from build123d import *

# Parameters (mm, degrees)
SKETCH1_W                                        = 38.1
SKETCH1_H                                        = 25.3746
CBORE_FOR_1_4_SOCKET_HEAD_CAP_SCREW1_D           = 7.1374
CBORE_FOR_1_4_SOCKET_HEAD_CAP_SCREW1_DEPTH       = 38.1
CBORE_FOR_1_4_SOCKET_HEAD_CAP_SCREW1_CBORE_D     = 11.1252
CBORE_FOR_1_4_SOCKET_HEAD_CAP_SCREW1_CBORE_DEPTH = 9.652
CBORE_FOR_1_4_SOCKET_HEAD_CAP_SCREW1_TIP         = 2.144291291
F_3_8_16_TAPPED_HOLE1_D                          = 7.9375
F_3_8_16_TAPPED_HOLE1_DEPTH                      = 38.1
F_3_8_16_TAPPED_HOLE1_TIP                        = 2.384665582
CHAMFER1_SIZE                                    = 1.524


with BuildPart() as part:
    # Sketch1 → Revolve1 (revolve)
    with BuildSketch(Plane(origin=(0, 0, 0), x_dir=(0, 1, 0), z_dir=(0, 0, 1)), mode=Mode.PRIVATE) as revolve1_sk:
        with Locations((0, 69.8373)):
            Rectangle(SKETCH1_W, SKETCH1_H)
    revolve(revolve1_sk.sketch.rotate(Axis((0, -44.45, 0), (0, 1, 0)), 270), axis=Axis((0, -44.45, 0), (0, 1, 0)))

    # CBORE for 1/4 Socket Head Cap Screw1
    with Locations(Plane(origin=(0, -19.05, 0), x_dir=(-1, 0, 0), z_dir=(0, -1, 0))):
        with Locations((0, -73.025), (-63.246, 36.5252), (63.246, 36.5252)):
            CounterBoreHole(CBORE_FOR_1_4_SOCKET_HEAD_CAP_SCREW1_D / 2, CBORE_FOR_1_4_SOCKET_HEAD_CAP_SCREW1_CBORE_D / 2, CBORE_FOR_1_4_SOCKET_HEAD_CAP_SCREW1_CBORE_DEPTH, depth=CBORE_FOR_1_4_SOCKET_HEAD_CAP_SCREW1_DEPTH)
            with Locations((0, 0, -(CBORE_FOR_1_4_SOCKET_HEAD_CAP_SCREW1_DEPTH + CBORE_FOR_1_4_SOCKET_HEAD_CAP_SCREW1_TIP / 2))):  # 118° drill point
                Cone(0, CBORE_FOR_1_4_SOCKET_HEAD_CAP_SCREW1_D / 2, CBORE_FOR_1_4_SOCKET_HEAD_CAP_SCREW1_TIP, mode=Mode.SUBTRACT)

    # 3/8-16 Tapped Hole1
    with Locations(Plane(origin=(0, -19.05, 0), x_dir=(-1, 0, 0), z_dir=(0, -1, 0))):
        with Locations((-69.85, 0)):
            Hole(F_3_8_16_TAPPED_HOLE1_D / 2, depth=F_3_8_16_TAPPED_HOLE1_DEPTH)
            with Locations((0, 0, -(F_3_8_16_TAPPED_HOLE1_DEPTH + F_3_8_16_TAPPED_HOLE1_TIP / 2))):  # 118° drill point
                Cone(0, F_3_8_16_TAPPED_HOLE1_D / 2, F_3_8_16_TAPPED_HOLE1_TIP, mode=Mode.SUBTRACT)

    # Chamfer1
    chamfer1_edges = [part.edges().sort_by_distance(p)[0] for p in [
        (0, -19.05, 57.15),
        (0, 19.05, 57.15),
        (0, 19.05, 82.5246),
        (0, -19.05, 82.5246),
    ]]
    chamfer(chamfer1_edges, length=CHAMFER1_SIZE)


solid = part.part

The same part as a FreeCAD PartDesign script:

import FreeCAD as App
import Part
import Sketcher

V = App.Vector
Q = App.Units.Quantity


def edges_at(feature, points):
    """Names of the edges that pass closest to the given points."""
    edges = feature.Shape.Edges
    near = lambda p: min(range(len(edges)), key=lambda i: edges[i].distToShape(Part.Vertex(*p))[0])
    return sorted({f"Edge{near(p) + 1}" for p in points})

doc = App.newDocument("Part")
body = doc.addObject("PartDesign::Body", "Body")

# Sketch on XY plane
sketch1 = body.newObject("Sketcher::SketchObject", "Sketch")
sketch1.AttachmentSupport = (doc.getObject("XY_Plane"), [""])
sketch1.MapMode = "FlatFace"
sketch1.addGeometry(Part.LineSegment(V(-82.5246, -19.05, 0), V(-57.15, -19.05, 0)), False)
sketch1.addGeometry(Part.LineSegment(V(-57.15, -19.05, 0), V(-57.15, 19.05, 0)), False)
sketch1.addGeometry(Part.LineSegment(V(-57.15, 19.05, 0), V(-82.5246, 19.05, 0)), False)
sketch1.addGeometry(Part.LineSegment(V(-82.5246, 19.05, 0), V(-82.5246, -19.05, 0)), False)
sketch1.addConstraint(Sketcher.Constraint("Coincident", 0, 2, 1, 1))
sketch1.addConstraint(Sketcher.Constraint("Coincident", 1, 2, 2, 1))
sketch1.addConstraint(Sketcher.Constraint("Coincident", 2, 2, 3, 1))
sketch1.addConstraint(Sketcher.Constraint("Coincident", 3, 2, 0, 1))
sketch1.addConstraint(Sketcher.Constraint("Horizontal", 0))
sketch1.addConstraint(Sketcher.Constraint("Vertical", 1))
sketch1.addConstraint(Sketcher.Constraint("Horizontal", 2))
sketch1.addConstraint(Sketcher.Constraint("Vertical", 3))
sketch1.addConstraint(Sketcher.Constraint("DistanceY", 1, 1, 1, 2, Q("1.5 in")))
sketch1.addConstraint(Sketcher.Constraint("DistanceX", 0, 1, 0, 2, Q("0.999 in")))
sketch1.addConstraint(Sketcher.Constraint("DistanceX", 0, 2, -1, 1, Q("2.25 in")))
sketch1.addConstraint(Sketcher.Constraint("DistanceY", 0, 2, -1, 1, Q("0.75 in")))
revolution = body.newObject("PartDesign::Revolution", "Revolution")
revolution.Profile = sketch1
revolution.ReferenceAxis = (sketch1, ["V_Axis"])
revolution.Angle = 360

# Sketch on XZ plane
sketch2 = body.newObject("Sketcher::SketchObject", "Sketch001")
sketch2.AttachmentSupport = (doc.getObject("XZ_Plane"), [""])
sketch2.MapMode = "FlatFace"
sketch2.AttachmentOffset = App.Placement(V(0, 0, 0.75 * 25.4), App.Rotation())
sketch2.addGeometry(Part.Circle(V(0, 73.025, 0), V(0, 0, 1), 3.5687), False)
sketch2.addGeometry(Part.Circle(V(63.246, -36.5252, 0), V(0, 0, 1), 3.5687), False)
sketch2.addGeometry(Part.Circle(V(-63.246, -36.5252, 0), V(0, 0, 1), 3.5687), False)
sketch2.addConstraint(Sketcher.Constraint("Equal", 0, 1))
sketch2.addConstraint(Sketcher.Constraint("Equal", 1, 2))
sketch2.addConstraint(Sketcher.Constraint("Symmetric", 1, 3, 2, 3, -2))
sketch2.addConstraint(Sketcher.Constraint("PointOnObject", 0, 3, -2))
sketch2.addConstraint(Sketcher.Constraint("Diameter", 0, Q("0.281 in")))
sketch2.addConstraint(Sketcher.Constraint("DistanceX", -1, 1, 1, 3, Q("2.49 in")))
sketch2.addConstraint(Sketcher.Constraint("DistanceY", -1, 1, 0, 3, Q("2.875 in")))
sketch2.addConstraint(Sketcher.Constraint("DistanceY", 1, 3, -1, 1, Q("1.438 in")))
doc.recompute()
hole = body.newObject("PartDesign::Hole", "Hole")
hole.Profile = sketch2
hole.ThreadType = "None"
hole.Diameter = Q("0.281 in")
hole.DepthType = "Dimension"
hole.Depth = Q("1.5 in")
hole.DrillPoint = "Angled"
hole.DrillPointAngle = 118
hole.HoleCutType = "Counterbore"
hole.HoleCutDiameter = Q("0.438 in")
hole.HoleCutDepth = Q("0.38 in")

# Sketch on XZ plane
sketch3 = body.newObject("Sketcher::SketchObject", "Sketch002")
sketch3.AttachmentSupport = (doc.getObject("XZ_Plane"), [""])
sketch3.MapMode = "FlatFace"
sketch3.AttachmentOffset = App.Placement(V(0, 0, 0.75 * 25.4), App.Rotation())
sketch3.addGeometry(Part.Circle(V(69.85, 0, 0), V(0, 0, 1), 3.96875), False)
sketch3.addConstraint(Sketcher.Constraint("PointOnObject", 0, 3, -1))
sketch3.addConstraint(Sketcher.Constraint("Diameter", 0, Q("0.3125 in")))
sketch3.addConstraint(Sketcher.Constraint("DistanceX", -1, 1, 0, 3, Q("2.75 in")))
doc.recompute()
hole2 = body.newObject("PartDesign::Hole", "Hole001")
hole2.Profile = sketch3
hole2.ThreadType = "None"
hole2.Diameter = Q("0.3125 in")
hole2.DepthType = "Dimension"
hole2.Depth = Q("1.5 in")
hole2.DrillPoint = "Angled"
hole2.DrillPointAngle = 118
doc.recompute()

chamfer = body.newObject("PartDesign::Chamfer", "Chamfer")
chamfer.Base = (hole2, edges_at(hole2, [
    (0, -19.05, 57.15),
    (0, 19.05, 57.15),
    (0, 19.05, 82.525),
    (0, -19.05, 82.525),
]))
chamfer.Size = Q("0.06 in")

doc.recompute()
